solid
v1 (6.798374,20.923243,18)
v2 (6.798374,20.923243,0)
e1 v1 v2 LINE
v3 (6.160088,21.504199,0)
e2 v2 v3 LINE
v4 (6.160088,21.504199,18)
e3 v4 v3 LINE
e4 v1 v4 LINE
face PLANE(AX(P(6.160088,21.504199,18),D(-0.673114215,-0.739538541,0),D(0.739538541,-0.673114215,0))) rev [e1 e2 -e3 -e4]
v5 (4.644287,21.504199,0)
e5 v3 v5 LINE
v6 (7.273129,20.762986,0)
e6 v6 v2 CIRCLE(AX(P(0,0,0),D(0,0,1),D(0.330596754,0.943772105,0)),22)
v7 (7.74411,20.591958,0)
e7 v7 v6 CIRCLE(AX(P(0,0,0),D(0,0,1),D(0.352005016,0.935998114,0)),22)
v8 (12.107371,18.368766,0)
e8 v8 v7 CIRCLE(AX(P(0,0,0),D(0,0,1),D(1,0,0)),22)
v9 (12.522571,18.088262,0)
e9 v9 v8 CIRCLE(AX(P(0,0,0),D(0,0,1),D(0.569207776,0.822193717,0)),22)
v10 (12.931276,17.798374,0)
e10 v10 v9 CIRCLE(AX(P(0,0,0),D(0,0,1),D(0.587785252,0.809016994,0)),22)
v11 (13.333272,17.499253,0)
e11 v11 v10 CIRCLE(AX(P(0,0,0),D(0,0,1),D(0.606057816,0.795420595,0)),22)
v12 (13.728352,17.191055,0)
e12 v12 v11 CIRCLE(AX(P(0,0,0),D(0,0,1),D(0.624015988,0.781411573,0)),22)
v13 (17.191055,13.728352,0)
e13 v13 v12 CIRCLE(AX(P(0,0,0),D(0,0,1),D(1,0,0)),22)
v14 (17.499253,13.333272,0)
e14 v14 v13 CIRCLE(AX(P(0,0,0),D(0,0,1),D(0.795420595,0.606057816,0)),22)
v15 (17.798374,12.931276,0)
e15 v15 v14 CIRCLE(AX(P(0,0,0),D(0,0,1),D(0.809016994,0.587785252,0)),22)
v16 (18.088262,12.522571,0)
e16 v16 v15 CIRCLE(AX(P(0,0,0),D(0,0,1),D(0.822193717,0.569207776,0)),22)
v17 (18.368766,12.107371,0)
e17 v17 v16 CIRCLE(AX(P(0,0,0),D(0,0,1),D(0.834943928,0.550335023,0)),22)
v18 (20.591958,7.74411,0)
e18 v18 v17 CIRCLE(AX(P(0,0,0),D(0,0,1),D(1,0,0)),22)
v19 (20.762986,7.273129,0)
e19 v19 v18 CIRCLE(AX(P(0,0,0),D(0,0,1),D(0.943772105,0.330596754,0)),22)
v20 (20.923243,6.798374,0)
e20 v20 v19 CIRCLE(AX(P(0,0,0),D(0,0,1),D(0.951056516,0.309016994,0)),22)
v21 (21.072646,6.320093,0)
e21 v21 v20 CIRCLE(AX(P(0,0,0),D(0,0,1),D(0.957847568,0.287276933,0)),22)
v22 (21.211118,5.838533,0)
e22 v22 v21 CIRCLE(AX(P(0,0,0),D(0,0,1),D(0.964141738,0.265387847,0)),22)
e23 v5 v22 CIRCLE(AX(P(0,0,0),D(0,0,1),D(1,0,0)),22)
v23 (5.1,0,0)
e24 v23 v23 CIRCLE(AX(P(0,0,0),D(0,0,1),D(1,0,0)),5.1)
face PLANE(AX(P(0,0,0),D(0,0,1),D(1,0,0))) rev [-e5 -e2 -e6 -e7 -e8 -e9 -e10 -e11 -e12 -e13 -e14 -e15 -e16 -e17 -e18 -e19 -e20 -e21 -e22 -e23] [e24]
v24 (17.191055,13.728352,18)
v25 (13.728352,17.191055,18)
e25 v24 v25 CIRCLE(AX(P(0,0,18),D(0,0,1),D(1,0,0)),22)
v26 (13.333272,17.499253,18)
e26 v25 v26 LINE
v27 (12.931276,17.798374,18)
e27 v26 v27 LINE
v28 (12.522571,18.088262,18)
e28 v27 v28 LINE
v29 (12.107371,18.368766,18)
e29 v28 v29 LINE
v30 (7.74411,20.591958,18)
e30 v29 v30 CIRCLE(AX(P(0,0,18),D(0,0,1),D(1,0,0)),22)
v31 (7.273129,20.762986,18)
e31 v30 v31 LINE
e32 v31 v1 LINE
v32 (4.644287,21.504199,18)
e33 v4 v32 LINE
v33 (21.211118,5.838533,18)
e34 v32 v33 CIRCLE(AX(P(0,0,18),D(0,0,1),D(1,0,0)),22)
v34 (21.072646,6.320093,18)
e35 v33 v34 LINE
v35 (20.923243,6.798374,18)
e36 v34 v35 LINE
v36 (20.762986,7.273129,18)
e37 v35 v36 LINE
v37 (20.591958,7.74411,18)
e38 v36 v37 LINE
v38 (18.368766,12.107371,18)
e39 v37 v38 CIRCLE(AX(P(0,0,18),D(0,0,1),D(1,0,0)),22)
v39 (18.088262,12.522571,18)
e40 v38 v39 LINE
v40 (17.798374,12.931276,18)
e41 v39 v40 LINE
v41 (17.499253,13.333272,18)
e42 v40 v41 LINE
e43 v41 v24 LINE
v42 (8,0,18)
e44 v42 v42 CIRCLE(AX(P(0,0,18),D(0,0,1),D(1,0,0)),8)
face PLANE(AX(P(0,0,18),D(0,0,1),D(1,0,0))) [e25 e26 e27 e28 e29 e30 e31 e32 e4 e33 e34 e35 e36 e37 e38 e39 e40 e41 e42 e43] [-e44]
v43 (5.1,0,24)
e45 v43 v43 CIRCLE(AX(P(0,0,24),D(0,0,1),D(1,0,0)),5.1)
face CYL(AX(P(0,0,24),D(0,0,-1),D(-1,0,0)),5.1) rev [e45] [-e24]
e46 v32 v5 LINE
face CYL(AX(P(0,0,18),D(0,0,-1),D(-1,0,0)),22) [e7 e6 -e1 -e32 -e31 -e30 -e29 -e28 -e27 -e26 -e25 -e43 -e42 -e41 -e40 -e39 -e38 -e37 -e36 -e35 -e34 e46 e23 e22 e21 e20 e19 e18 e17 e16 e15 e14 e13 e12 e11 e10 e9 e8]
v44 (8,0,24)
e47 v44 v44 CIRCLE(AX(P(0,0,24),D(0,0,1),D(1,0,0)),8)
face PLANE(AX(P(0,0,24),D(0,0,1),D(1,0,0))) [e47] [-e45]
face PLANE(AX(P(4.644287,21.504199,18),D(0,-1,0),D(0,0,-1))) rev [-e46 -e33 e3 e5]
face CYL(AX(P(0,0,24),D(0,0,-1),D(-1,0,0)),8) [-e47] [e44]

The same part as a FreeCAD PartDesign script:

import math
import FreeCAD as App
import Part
import Sketcher
Q = App.Units.Quantity

doc = App.newDocument("Part")
body = doc.addObject("PartDesign::Body", "Body")

# Sketch on XY plane
sketch1 = body.newObject("Sketcher::SketchObject", "Sketch")
sketch1.AttachmentSupport = (doc.getObject("XY_Plane"), [""])
sketch1.MapMode = "FlatFace"
sketch1.addGeometry(Part.Circle(App.Vector(0, 0, 0), App.Vector(0, 0, 1), 8), False)
sketch1.addGeometry(Part.Circle(App.Vector(0, 0, 0), App.Vector(0, 0, 1), 5.1), False)
sketch1.addConstraint(Sketcher.Constraint("Coincident", 0, 3, -1, 1))
sketch1.addConstraint(Sketcher.Constraint("Coincident", 1, 3, -1, 1))
sketch1.addConstraint(Sketcher.Constraint("Diameter", 0, Q("16 mm")))
sketch1.addConstraint(Sketcher.Constraint("Diameter", 1, Q("10.2 mm")))
pad1 = body.newObject("PartDesign::Pad", "Pad")
pad1.Profile = sketch1
pad1.Length = 24

# Sketch on XY plane
sketch2 = body.newObject("Sketcher::SketchObject", "Sketch001")
sketch2.AttachmentSupport = (doc.getObject("XY_Plane"), [""])
sketch2.MapMode = "FlatFace"
sketch2.addGeometry(Part.Circle(App.Vector(0, 0, 0), App.Vector(0, 0, 1), 8), False)
sketch2.addGeometry(Part.Circle(App.Vector(0, 0, 0), App.Vector(0, 0, 1), 5.1), False)
sketch2.addConstraint(Sketcher.Constraint("Coincident", 0, 3, -1, 1))
sketch2.addConstraint(Sketcher.Constraint("Coincident", 1, 3, -1, 1))
sketch2.addConstraint(Sketcher.Constraint("Diameter", 0, Q("16 mm")))
sketch2.addConstraint(Sketcher.Constraint("Diameter", 1, Q("10.2 mm")))
pad2 = body.newObject("PartDesign::Pad", "Pad001")
pad2.Profile = sketch2
pad2.Length = 24

# Sketch on XY plane
sketch3 = body.newObject("Sketcher::SketchObject", "Sketch002")
sketch3.AttachmentSupport = (doc.getObject("XY_Plane"), [""])
sketch3.MapMode = "FlatFace"
sketch3.addGeometry(Part.Circle(App.Vector(0, 0, 0), App.Vector(0, 0, 1), 22), False)
sketch3.addGeometry(Part.Circle(App.Vector(0, 0, 0), App.Vector(0, 0, 1), 8), False)
sketch3.addConstraint(Sketcher.Constraint("Coincident", 0, 3, -1, 1))
sketch3.addConstraint(Sketcher.Constraint("Coincident", 1, 3, -1, 1))
sketch3.addConstraint(Sketcher.Constraint("Diameter", 0, Q("44 mm")))
sketch3.addConstraint(Sketcher.Constraint("Diameter", 1, Q("16 mm")))
pad3 = body.newObject("PartDesign::Pad", "Pad002")
pad3.Profile = sketch3
pad3.Length = 18

# Sketch on XY plane
sketch4 = body.newObject("Sketcher::SketchObject", "Sketch003")
sketch4.AttachmentSupport = (doc.getObject("XY_Plane"), [""])
sketch4.MapMode = "FlatFace"
sketch4.addGeometry(Part.LineSegment(App.Vector(20.591958, 7.74411, 0), App.Vector(16.379967, 6.160088, 0)), False)
sketch4.addGeometry(Part.ArcOfCircle(Part.Circle(App.Vector(0, 0, 0), App.Vector(0, 0, 1), 17.5), math.radians(15.39), math.radians(20.61)), False)
sketch4.addGeometry(Part.LineSegment(App.Vector(16.87248, 4.644287, 0), App.Vector(21.211118, 5.838533, 0)), False)
sketch4.addGeometry(Part.LineSegment(App.Vector(21.211118, 5.838533, 0), App.Vector(21.072646, 6.320093, 0)), False)
sketch4.addGeometry(Part.LineSegment(App.Vector(21.072646, 6.320093, 0), App.Vector(20.923243, 6.798374, 0)), False)
sketch4.addGeometry(Part.LineSegment(App.Vector(20.923243, 6.798374, 0), App.Vector(20.762986, 7.273129, 0)), False)
sketch4.addGeometry(Part.LineSegment(App.Vector(20.762986, 7.273129, 0), App.Vector(20.591958, 7.74411, 0)), False)
sketch4.addConstraint(Sketcher.Constraint("Coincident", 0, 2, 1, 2))
sketch4.addConstraint(Sketcher.Constraint("Coincident", 1, 1, 2, 1))
sketch4.addConstraint(Sketcher.Constraint("Coincident", 2, 2, 3, 1))
sketch4.addConstraint(Sketcher.Constraint("Coincident", 3, 2, 4, 1))
sketch4.addConstraint(Sketcher.Constraint("Coincident", 4, 2, 5, 1))
sketch4.addConstraint(Sketcher.Constraint("Coincident", 5, 2, 6, 1))
sketch4.addConstraint(Sketcher.Constraint("Coincident", 6, 2, 0, 1))
sketch4.addConstraint(Sketcher.Constraint("Coincident", 1, 3, -1, 1))
sketch4.addConstraint(Sketcher.Constraint("Radius", 1, Q("17.5 mm")))
sketch4.addConstraint(Sketcher.Constraint("Distance", 0, Q("4.5 mm")))
sketch4.addConstraint(Sketcher.Constraint("Distance", 2, Q("4.5 mm")))
sketch4.addConstraint(Sketcher.Constraint("DistanceY", 1, 1, 0, 2, Q("1.5158 mm")))
sketch4.addConstraint(Sketcher.Constraint("DistanceX", -1, 1, 1, 1, Q("16.87248 mm")))
sketch4.addConstraint(Sketcher.Constraint("DistanceX", -1, 1, 2, 2, Q("21.211118 mm")))
sketch4.addConstraint(Sketcher.Constraint("DistanceY", -1, 1, 5, 2, Q("7.273129 mm")))
sketch4.addConstraint(Sketcher.Constraint("DistanceX", -1, 1, 6, 2, Q("20.591958 mm")))
sketch4.addConstraint(Sketcher.Constraint("DistanceX", 3, 2, 2, 2, Q("0.138472 mm")))
sketch4.addConstraint(Sketcher.Constraint("DistanceY", 2, 2, 3, 2, Q("0.48156 mm")))
sketch4.addConstraint(Sketcher.Constraint("DistanceY", 3, 2, 4, 2, Q("0.478281 mm")))
sketch4.addConstraint(Sketcher.Constraint("DistanceX", 5, 2, 3, 2, Q("0.30966 mm")))
sketch4.addConstraint(Sketcher.Constraint("Distance", 4, Q("0.501073 mm")))
pad4 = body.newObject("PartDesign::Pad", "Pad003")
pad4.Profile = sketch4
pad4.Length = 18

# Sketch on XY plane
sketch5 = body.newObject("Sketcher::SketchObject", "Sketch004")
sketch5.AttachmentSupport = (doc.getObject("XY_Plane"), [""])
sketch5.MapMode = "FlatFace"
sketch5.addGeometry(Part.LineSegment(App.Vector(17.191055, 13.728352, 0), App.Vector(13.674703, 10.92028, 0)), False)
sketch5.addGeometry(Part.ArcOfCircle(Part.Circle(App.Vector(0, 0, 0), App.Vector(0, 0, 1), 17.5), math.radians(33.39), math.radians(38.61)), False)
sketch5.addGeometry(Part.LineSegment(App.Vector(14.611519, 9.630863, 0), App.Vector(18.368766, 12.107371, 0)), False)
sketch5.addGeometry(Part.LineSegment(App.Vector(18.368766, 12.107371, 0), App.Vector(18.088262, 12.522571, 0)), False)
sketch5.addGeometry(Part.LineSegment(App.Vector(18.088262, 12.522571, 0), App.Vector(17.798374, 12.931276, 0)), False)
sketch5.addGeometry(Part.LineSegment(App.Vector(17.798374, 12.931276, 0), App.Vector(17.499253, 13.333272, 0)), False)
sketch5.addGeometry(Part.LineSegment(App.Vector(17.499253, 13.333272, 0), App.Vector(17.191055, 13.728352, 0)), False)
sketch5.addConstraint(Sketcher.Constraint("Coincident", 0, 2, 1, 2))
sketch5.addConstraint(Sketcher.Constraint("Coincident", 1, 1, 2, 1))
sketch5.addConstraint(Sketcher.Constraint("Coincident", 2, 2, 3, 1))
sketch5.addConstraint(Sketcher.Constraint("Coincident", 3, 2, 4, 1))
sketch5.addConstraint(Sketcher.Constraint("Coincident", 4, 2, 5, 1))
sketch5.addConstraint(Sketcher.Constraint("Coincident", 5, 2, 6, 1))
sketch5.addConstraint(Sketcher.Constraint("Coincident", 6, 2, 0, 1))
sketch5.addConstraint(Sketcher.Constraint("Coincident", 1, 3, -1, 1))
sketch5.addConstraint(Sketcher.Constraint("Radius", 1, Q("17.5 mm")))
sketch5.addConstraint(Sketcher.Constraint("Distance", 0, Q("4.5 mm")))
sketch5.addConstraint(Sketcher.Constraint("Distance", 2, Q("4.5 mm")))
sketch5.addConstraint(Sketcher.Constraint("DistanceY", 2, 2, 3, 2, Q("0.415201 mm")))
sketch5.addConstraint(Sketcher.Constraint("DistanceY", 3, 2, 5, 2, Q("0.810701 mm")))
sketch5.addConstraint(Sketcher.Constraint("DistanceX", 6, 2, 5, 2, Q("0.308198 mm")))
sketch5.addConstraint(Sketcher.Constraint("DistanceY", -1, 1, 0, 2, Q("10.92028 mm")))
sketch5.addConstraint(Sketcher.Constraint("DistanceX", -1, 1, 1, 1, Q("14.611519 mm")))
sketch5.addConstraint(Sketcher.Constraint("DistanceY", -1, 1, 2, 2, Q("12.107371 mm")))
sketch5.addConstraint(Sketcher.Constraint("DistanceX", -1, 1, 3, 2, Q("18.088262 mm")))
sketch5.addConstraint(Sketcher.Constraint("DistanceY", -1, 1, 6, 2, Q("13.728352 mm")))
sketch5.addConstraint(Sketcher.Constraint("DistanceX", 0, 2, 4, 2, Q("4.123671 mm")))
sketch5.addConstraint(Sketcher.Constraint("Distance", 4, Q("0.501073 mm")))
pad5 = body.newObject("PartDesign::Pad", "Pad004")
pad5.Profile = sketch5
pad5.Length = 18

# Sketch on XY plane
sketch6 = body.newObject("Sketcher::SketchObject", "Sketch005")
sketch6.AttachmentSupport = (doc.getObject("XY_Plane"), [""])
sketch6.MapMode = "FlatFace"
sketch6.addGeometry(Part.LineSegment(App.Vector(12.107371, 18.368766, 0), App.Vector(9.630863, 14.611519, 0)), False)
sketch6.addGeometry(Part.ArcOfCircle(Part.Circle(App.Vector(0, 0, 0), App.Vector(0, 0, 1), 17.5), math.radians(51.39), math.radians(56.61)), False)
sketch6.addGeometry(Part.LineSegment(App.Vector(10.92028, 13.674703, 0), App.Vector(13.728352, 17.191055, 0)), False)
sketch6.addGeometry(Part.LineSegment(App.Vector(13.728352, 17.191055, 0), App.Vector(13.333272, 17.499253, 0)), False)
sketch6.addGeometry(Part.LineSegment(App.Vector(13.333272, 17.499253, 0), App.Vector(12.931276, 17.798374, 0)), False)
sketch6.addGeometry(Part.LineSegment(App.Vector(12.931276, 17.798374, 0), App.Vector(12.522571, 18.088262, 0)), False)
sketch6.addGeometry(Part.LineSegment(App.Vector(12.522571, 18.088262, 0), App.Vector(12.107371, 18.368766, 0)), False)
sketch6.addConstraint(Sketcher.Constraint("Coincident", 0, 2, 1, 2))
sketch6.addConstraint(Sketcher.Constraint("Coincident", 1, 1, 2, 1))
sketch6.addConstraint(Sketcher.Constraint("Coincident", 2, 2, 3, 1))
sketch6.addConstraint(Sketcher.Constraint("Coincident", 3, 2, 4, 1))
sketch6.addConstraint(Sketcher.Constraint("Coincident", 4, 2, 5, 1))
sketch6.addConstraint(Sketcher.Constraint("Coincident", 5, 2, 6, 1))
sketch6.addConstraint(Sketcher.Constraint("Coincident", 6, 2, 0, 1))
sketch6.addConstraint(Sketcher.Constraint("Coincident", 1, 3, -1, 1))
sketch6.addConstraint(Sketcher.Constraint("Radius", 1, Q("17.5 mm")))
sketch6.addConstraint(Sketcher.Constraint("Distance", 0, Q("4.5 mm")))
sketch6.addConstraint(Sketcher.Constraint("Distance", 2, Q("4.5 mm")))
sketch6.addConstraint(Sketcher.Constraint("DistanceY", 2, 2, 3, 2, Q("0.308198 mm")))
sketch6.addConstraint(Sketcher.Constraint("DistanceX", 5, 2, 3, 2, Q("0.810701 mm")))
sketch6.addConstraint(Sketcher.Constraint("DistanceX", 6, 2, 5, 2, Q("0.415201 mm")))
sketch6.addConstraint(Sketcher.Constraint("DistanceY", -1, 1, 0, 2, Q("14.611519 mm")))
sketch6.addConstraint(Sketcher.Constraint("DistanceX", -1, 1, 1, 1, Q("10.92028 mm")))
sketch6.addConstraint(Sketcher.Constraint("DistanceX", -1, 1, 2, 2, Q("13.728352 mm")))
sketch6.addConstraint(Sketcher.Constraint("DistanceX", -1, 1, 3, 2, Q("13.333272 mm")))
sketch6.addConstraint(Sketcher.Constraint("DistanceY", -1, 1, 5, 2, Q("18.088262 mm")))
sketch6.addConstraint(Sketcher.Constraint("DistanceY", 3, 2, 4, 2, Q("0.299121 mm")))
sketch6.addConstraint(Sketcher.Constraint("Distance", 4, Q("0.501073 mm")))
pad6 = body.newObject("PartDesign::Pad", "Pad005")
pad6.Profile = sketch6
pad6.Length = 18

# Sketch on XY plane
sketch7 = body.newObject("Sketcher::SketchObject", "Sketch006")
sketch7.AttachmentSupport = (doc.getObject("XY_Plane"), [""])
sketch7.MapMode = "FlatFace"
sketch7.addGeometry(Part.LineSegment(App.Vector(4.644287, 21.504199, 0), App.Vector(4.644287, 16.87248, 0)), False)
sketch7.addGeometry(Part.ArcOfCircle(Part.Circle(App.Vector(0, 0, 0), App.Vector(0, 0, 1), 17.5), math.radians(69.39), math.radians(74.61)), False)
sketch7.addGeometry(Part.LineSegment(App.Vector(6.160088, 16.379967, 0), App.Vector(7.74411, 20.591958, 0)), False)
sketch7.addGeometry(Part.LineSegment(App.Vector(7.74411, 20.591958, 0), App.Vector(7.273129, 20.762986, 0)), False)
sketch7.addGeometry(Part.LineSegment(App.Vector(7.273129, 20.762986, 0), App.Vector(6.798374, 20.923243, 0)), False)
sketch7.addGeometry(Part.LineSegment(App.Vector(6.798374, 20.923243, 0), App.Vector(6.160088, 21.504199, 0)), False)
sketch7.addGeometry(Part.LineSegment(App.Vector(6.160088, 21.504199, 0), App.Vector(4.644287, 21.504199, 0)), False)
sketch7.addConstraint(Sketcher.Constraint("Coincident", 0, 2, 1, 2))
sketch7.addConstraint(Sketcher.Constraint("Coincident", 1, 1, 2, 1))
sketch7.addConstraint(Sketcher.Constraint("Coincident", 2, 2, 3, 1))
sketch7.addConstraint(Sketcher.Constraint("Coincident", 3, 2, 4, 1))
sketch7.addConstraint(Sketcher.Constraint("Coincident", 4, 2, 5, 1))
sketch7.addConstraint(Sketcher.Constraint("Coincident", 5, 2, 6, 1))
sketch7.addConstraint(Sketcher.Constraint("Coincident", 6, 2, 0, 1))
sketch7.addConstraint(Sketcher.Constraint("Vertical", 0))
sketch7.addConstraint(Sketcher.Constraint("Horizontal", 6))
sketch7.addConstraint(Sketcher.Constraint("Coincident", 1, 3, -1, 1))
sketch7.addConstraint(Sketcher.Constraint("Vertical", 1, 1, 5, 2))
sketch7.addConstraint(Sketcher.Constraint("Equal", 3, 4))
sketch7.addConstraint(Sketcher.Constraint("Radius", 1, Q("17.5 mm")))
sketch7.addConstraint(Sketcher.Constraint("Distance", 2, Q("4.5 mm")))
sketch7.addConstraint(Sketcher.Constraint("Angle", 2, Q("69.39 deg")))
sketch7.addConstraint(Sketcher.Constraint("DistanceX", 6, 2, 6, 1, Q("1.5158 mm")))
sketch7.addConstraint(Sketcher.Constraint("DistanceY", 0, 2, 0, 1, Q("4.631719 mm")))
sketch7.addConstraint(Sketcher.Constraint("DistanceY", -1, 1, 5, 2, Q("21.504199 mm")))
sketch7.addConstraint(Sketcher.Constraint("DistanceX", -1, 1, 3, 2, Q("7.273129 mm")))
sketch7.addConstraint(Sketcher.Constraint("DistanceY", 1, 1, 3, 2, Q("4.383019 mm")))
sketch7.addConstraint(Sketcher.Constraint("Distance", 5, Q("0.863087 mm")))
pad7 = body.newObject("PartDesign::Pad", "Pad006")
pad7.Profile = sketch7
pad7.Length = 18

doc.recompute()
